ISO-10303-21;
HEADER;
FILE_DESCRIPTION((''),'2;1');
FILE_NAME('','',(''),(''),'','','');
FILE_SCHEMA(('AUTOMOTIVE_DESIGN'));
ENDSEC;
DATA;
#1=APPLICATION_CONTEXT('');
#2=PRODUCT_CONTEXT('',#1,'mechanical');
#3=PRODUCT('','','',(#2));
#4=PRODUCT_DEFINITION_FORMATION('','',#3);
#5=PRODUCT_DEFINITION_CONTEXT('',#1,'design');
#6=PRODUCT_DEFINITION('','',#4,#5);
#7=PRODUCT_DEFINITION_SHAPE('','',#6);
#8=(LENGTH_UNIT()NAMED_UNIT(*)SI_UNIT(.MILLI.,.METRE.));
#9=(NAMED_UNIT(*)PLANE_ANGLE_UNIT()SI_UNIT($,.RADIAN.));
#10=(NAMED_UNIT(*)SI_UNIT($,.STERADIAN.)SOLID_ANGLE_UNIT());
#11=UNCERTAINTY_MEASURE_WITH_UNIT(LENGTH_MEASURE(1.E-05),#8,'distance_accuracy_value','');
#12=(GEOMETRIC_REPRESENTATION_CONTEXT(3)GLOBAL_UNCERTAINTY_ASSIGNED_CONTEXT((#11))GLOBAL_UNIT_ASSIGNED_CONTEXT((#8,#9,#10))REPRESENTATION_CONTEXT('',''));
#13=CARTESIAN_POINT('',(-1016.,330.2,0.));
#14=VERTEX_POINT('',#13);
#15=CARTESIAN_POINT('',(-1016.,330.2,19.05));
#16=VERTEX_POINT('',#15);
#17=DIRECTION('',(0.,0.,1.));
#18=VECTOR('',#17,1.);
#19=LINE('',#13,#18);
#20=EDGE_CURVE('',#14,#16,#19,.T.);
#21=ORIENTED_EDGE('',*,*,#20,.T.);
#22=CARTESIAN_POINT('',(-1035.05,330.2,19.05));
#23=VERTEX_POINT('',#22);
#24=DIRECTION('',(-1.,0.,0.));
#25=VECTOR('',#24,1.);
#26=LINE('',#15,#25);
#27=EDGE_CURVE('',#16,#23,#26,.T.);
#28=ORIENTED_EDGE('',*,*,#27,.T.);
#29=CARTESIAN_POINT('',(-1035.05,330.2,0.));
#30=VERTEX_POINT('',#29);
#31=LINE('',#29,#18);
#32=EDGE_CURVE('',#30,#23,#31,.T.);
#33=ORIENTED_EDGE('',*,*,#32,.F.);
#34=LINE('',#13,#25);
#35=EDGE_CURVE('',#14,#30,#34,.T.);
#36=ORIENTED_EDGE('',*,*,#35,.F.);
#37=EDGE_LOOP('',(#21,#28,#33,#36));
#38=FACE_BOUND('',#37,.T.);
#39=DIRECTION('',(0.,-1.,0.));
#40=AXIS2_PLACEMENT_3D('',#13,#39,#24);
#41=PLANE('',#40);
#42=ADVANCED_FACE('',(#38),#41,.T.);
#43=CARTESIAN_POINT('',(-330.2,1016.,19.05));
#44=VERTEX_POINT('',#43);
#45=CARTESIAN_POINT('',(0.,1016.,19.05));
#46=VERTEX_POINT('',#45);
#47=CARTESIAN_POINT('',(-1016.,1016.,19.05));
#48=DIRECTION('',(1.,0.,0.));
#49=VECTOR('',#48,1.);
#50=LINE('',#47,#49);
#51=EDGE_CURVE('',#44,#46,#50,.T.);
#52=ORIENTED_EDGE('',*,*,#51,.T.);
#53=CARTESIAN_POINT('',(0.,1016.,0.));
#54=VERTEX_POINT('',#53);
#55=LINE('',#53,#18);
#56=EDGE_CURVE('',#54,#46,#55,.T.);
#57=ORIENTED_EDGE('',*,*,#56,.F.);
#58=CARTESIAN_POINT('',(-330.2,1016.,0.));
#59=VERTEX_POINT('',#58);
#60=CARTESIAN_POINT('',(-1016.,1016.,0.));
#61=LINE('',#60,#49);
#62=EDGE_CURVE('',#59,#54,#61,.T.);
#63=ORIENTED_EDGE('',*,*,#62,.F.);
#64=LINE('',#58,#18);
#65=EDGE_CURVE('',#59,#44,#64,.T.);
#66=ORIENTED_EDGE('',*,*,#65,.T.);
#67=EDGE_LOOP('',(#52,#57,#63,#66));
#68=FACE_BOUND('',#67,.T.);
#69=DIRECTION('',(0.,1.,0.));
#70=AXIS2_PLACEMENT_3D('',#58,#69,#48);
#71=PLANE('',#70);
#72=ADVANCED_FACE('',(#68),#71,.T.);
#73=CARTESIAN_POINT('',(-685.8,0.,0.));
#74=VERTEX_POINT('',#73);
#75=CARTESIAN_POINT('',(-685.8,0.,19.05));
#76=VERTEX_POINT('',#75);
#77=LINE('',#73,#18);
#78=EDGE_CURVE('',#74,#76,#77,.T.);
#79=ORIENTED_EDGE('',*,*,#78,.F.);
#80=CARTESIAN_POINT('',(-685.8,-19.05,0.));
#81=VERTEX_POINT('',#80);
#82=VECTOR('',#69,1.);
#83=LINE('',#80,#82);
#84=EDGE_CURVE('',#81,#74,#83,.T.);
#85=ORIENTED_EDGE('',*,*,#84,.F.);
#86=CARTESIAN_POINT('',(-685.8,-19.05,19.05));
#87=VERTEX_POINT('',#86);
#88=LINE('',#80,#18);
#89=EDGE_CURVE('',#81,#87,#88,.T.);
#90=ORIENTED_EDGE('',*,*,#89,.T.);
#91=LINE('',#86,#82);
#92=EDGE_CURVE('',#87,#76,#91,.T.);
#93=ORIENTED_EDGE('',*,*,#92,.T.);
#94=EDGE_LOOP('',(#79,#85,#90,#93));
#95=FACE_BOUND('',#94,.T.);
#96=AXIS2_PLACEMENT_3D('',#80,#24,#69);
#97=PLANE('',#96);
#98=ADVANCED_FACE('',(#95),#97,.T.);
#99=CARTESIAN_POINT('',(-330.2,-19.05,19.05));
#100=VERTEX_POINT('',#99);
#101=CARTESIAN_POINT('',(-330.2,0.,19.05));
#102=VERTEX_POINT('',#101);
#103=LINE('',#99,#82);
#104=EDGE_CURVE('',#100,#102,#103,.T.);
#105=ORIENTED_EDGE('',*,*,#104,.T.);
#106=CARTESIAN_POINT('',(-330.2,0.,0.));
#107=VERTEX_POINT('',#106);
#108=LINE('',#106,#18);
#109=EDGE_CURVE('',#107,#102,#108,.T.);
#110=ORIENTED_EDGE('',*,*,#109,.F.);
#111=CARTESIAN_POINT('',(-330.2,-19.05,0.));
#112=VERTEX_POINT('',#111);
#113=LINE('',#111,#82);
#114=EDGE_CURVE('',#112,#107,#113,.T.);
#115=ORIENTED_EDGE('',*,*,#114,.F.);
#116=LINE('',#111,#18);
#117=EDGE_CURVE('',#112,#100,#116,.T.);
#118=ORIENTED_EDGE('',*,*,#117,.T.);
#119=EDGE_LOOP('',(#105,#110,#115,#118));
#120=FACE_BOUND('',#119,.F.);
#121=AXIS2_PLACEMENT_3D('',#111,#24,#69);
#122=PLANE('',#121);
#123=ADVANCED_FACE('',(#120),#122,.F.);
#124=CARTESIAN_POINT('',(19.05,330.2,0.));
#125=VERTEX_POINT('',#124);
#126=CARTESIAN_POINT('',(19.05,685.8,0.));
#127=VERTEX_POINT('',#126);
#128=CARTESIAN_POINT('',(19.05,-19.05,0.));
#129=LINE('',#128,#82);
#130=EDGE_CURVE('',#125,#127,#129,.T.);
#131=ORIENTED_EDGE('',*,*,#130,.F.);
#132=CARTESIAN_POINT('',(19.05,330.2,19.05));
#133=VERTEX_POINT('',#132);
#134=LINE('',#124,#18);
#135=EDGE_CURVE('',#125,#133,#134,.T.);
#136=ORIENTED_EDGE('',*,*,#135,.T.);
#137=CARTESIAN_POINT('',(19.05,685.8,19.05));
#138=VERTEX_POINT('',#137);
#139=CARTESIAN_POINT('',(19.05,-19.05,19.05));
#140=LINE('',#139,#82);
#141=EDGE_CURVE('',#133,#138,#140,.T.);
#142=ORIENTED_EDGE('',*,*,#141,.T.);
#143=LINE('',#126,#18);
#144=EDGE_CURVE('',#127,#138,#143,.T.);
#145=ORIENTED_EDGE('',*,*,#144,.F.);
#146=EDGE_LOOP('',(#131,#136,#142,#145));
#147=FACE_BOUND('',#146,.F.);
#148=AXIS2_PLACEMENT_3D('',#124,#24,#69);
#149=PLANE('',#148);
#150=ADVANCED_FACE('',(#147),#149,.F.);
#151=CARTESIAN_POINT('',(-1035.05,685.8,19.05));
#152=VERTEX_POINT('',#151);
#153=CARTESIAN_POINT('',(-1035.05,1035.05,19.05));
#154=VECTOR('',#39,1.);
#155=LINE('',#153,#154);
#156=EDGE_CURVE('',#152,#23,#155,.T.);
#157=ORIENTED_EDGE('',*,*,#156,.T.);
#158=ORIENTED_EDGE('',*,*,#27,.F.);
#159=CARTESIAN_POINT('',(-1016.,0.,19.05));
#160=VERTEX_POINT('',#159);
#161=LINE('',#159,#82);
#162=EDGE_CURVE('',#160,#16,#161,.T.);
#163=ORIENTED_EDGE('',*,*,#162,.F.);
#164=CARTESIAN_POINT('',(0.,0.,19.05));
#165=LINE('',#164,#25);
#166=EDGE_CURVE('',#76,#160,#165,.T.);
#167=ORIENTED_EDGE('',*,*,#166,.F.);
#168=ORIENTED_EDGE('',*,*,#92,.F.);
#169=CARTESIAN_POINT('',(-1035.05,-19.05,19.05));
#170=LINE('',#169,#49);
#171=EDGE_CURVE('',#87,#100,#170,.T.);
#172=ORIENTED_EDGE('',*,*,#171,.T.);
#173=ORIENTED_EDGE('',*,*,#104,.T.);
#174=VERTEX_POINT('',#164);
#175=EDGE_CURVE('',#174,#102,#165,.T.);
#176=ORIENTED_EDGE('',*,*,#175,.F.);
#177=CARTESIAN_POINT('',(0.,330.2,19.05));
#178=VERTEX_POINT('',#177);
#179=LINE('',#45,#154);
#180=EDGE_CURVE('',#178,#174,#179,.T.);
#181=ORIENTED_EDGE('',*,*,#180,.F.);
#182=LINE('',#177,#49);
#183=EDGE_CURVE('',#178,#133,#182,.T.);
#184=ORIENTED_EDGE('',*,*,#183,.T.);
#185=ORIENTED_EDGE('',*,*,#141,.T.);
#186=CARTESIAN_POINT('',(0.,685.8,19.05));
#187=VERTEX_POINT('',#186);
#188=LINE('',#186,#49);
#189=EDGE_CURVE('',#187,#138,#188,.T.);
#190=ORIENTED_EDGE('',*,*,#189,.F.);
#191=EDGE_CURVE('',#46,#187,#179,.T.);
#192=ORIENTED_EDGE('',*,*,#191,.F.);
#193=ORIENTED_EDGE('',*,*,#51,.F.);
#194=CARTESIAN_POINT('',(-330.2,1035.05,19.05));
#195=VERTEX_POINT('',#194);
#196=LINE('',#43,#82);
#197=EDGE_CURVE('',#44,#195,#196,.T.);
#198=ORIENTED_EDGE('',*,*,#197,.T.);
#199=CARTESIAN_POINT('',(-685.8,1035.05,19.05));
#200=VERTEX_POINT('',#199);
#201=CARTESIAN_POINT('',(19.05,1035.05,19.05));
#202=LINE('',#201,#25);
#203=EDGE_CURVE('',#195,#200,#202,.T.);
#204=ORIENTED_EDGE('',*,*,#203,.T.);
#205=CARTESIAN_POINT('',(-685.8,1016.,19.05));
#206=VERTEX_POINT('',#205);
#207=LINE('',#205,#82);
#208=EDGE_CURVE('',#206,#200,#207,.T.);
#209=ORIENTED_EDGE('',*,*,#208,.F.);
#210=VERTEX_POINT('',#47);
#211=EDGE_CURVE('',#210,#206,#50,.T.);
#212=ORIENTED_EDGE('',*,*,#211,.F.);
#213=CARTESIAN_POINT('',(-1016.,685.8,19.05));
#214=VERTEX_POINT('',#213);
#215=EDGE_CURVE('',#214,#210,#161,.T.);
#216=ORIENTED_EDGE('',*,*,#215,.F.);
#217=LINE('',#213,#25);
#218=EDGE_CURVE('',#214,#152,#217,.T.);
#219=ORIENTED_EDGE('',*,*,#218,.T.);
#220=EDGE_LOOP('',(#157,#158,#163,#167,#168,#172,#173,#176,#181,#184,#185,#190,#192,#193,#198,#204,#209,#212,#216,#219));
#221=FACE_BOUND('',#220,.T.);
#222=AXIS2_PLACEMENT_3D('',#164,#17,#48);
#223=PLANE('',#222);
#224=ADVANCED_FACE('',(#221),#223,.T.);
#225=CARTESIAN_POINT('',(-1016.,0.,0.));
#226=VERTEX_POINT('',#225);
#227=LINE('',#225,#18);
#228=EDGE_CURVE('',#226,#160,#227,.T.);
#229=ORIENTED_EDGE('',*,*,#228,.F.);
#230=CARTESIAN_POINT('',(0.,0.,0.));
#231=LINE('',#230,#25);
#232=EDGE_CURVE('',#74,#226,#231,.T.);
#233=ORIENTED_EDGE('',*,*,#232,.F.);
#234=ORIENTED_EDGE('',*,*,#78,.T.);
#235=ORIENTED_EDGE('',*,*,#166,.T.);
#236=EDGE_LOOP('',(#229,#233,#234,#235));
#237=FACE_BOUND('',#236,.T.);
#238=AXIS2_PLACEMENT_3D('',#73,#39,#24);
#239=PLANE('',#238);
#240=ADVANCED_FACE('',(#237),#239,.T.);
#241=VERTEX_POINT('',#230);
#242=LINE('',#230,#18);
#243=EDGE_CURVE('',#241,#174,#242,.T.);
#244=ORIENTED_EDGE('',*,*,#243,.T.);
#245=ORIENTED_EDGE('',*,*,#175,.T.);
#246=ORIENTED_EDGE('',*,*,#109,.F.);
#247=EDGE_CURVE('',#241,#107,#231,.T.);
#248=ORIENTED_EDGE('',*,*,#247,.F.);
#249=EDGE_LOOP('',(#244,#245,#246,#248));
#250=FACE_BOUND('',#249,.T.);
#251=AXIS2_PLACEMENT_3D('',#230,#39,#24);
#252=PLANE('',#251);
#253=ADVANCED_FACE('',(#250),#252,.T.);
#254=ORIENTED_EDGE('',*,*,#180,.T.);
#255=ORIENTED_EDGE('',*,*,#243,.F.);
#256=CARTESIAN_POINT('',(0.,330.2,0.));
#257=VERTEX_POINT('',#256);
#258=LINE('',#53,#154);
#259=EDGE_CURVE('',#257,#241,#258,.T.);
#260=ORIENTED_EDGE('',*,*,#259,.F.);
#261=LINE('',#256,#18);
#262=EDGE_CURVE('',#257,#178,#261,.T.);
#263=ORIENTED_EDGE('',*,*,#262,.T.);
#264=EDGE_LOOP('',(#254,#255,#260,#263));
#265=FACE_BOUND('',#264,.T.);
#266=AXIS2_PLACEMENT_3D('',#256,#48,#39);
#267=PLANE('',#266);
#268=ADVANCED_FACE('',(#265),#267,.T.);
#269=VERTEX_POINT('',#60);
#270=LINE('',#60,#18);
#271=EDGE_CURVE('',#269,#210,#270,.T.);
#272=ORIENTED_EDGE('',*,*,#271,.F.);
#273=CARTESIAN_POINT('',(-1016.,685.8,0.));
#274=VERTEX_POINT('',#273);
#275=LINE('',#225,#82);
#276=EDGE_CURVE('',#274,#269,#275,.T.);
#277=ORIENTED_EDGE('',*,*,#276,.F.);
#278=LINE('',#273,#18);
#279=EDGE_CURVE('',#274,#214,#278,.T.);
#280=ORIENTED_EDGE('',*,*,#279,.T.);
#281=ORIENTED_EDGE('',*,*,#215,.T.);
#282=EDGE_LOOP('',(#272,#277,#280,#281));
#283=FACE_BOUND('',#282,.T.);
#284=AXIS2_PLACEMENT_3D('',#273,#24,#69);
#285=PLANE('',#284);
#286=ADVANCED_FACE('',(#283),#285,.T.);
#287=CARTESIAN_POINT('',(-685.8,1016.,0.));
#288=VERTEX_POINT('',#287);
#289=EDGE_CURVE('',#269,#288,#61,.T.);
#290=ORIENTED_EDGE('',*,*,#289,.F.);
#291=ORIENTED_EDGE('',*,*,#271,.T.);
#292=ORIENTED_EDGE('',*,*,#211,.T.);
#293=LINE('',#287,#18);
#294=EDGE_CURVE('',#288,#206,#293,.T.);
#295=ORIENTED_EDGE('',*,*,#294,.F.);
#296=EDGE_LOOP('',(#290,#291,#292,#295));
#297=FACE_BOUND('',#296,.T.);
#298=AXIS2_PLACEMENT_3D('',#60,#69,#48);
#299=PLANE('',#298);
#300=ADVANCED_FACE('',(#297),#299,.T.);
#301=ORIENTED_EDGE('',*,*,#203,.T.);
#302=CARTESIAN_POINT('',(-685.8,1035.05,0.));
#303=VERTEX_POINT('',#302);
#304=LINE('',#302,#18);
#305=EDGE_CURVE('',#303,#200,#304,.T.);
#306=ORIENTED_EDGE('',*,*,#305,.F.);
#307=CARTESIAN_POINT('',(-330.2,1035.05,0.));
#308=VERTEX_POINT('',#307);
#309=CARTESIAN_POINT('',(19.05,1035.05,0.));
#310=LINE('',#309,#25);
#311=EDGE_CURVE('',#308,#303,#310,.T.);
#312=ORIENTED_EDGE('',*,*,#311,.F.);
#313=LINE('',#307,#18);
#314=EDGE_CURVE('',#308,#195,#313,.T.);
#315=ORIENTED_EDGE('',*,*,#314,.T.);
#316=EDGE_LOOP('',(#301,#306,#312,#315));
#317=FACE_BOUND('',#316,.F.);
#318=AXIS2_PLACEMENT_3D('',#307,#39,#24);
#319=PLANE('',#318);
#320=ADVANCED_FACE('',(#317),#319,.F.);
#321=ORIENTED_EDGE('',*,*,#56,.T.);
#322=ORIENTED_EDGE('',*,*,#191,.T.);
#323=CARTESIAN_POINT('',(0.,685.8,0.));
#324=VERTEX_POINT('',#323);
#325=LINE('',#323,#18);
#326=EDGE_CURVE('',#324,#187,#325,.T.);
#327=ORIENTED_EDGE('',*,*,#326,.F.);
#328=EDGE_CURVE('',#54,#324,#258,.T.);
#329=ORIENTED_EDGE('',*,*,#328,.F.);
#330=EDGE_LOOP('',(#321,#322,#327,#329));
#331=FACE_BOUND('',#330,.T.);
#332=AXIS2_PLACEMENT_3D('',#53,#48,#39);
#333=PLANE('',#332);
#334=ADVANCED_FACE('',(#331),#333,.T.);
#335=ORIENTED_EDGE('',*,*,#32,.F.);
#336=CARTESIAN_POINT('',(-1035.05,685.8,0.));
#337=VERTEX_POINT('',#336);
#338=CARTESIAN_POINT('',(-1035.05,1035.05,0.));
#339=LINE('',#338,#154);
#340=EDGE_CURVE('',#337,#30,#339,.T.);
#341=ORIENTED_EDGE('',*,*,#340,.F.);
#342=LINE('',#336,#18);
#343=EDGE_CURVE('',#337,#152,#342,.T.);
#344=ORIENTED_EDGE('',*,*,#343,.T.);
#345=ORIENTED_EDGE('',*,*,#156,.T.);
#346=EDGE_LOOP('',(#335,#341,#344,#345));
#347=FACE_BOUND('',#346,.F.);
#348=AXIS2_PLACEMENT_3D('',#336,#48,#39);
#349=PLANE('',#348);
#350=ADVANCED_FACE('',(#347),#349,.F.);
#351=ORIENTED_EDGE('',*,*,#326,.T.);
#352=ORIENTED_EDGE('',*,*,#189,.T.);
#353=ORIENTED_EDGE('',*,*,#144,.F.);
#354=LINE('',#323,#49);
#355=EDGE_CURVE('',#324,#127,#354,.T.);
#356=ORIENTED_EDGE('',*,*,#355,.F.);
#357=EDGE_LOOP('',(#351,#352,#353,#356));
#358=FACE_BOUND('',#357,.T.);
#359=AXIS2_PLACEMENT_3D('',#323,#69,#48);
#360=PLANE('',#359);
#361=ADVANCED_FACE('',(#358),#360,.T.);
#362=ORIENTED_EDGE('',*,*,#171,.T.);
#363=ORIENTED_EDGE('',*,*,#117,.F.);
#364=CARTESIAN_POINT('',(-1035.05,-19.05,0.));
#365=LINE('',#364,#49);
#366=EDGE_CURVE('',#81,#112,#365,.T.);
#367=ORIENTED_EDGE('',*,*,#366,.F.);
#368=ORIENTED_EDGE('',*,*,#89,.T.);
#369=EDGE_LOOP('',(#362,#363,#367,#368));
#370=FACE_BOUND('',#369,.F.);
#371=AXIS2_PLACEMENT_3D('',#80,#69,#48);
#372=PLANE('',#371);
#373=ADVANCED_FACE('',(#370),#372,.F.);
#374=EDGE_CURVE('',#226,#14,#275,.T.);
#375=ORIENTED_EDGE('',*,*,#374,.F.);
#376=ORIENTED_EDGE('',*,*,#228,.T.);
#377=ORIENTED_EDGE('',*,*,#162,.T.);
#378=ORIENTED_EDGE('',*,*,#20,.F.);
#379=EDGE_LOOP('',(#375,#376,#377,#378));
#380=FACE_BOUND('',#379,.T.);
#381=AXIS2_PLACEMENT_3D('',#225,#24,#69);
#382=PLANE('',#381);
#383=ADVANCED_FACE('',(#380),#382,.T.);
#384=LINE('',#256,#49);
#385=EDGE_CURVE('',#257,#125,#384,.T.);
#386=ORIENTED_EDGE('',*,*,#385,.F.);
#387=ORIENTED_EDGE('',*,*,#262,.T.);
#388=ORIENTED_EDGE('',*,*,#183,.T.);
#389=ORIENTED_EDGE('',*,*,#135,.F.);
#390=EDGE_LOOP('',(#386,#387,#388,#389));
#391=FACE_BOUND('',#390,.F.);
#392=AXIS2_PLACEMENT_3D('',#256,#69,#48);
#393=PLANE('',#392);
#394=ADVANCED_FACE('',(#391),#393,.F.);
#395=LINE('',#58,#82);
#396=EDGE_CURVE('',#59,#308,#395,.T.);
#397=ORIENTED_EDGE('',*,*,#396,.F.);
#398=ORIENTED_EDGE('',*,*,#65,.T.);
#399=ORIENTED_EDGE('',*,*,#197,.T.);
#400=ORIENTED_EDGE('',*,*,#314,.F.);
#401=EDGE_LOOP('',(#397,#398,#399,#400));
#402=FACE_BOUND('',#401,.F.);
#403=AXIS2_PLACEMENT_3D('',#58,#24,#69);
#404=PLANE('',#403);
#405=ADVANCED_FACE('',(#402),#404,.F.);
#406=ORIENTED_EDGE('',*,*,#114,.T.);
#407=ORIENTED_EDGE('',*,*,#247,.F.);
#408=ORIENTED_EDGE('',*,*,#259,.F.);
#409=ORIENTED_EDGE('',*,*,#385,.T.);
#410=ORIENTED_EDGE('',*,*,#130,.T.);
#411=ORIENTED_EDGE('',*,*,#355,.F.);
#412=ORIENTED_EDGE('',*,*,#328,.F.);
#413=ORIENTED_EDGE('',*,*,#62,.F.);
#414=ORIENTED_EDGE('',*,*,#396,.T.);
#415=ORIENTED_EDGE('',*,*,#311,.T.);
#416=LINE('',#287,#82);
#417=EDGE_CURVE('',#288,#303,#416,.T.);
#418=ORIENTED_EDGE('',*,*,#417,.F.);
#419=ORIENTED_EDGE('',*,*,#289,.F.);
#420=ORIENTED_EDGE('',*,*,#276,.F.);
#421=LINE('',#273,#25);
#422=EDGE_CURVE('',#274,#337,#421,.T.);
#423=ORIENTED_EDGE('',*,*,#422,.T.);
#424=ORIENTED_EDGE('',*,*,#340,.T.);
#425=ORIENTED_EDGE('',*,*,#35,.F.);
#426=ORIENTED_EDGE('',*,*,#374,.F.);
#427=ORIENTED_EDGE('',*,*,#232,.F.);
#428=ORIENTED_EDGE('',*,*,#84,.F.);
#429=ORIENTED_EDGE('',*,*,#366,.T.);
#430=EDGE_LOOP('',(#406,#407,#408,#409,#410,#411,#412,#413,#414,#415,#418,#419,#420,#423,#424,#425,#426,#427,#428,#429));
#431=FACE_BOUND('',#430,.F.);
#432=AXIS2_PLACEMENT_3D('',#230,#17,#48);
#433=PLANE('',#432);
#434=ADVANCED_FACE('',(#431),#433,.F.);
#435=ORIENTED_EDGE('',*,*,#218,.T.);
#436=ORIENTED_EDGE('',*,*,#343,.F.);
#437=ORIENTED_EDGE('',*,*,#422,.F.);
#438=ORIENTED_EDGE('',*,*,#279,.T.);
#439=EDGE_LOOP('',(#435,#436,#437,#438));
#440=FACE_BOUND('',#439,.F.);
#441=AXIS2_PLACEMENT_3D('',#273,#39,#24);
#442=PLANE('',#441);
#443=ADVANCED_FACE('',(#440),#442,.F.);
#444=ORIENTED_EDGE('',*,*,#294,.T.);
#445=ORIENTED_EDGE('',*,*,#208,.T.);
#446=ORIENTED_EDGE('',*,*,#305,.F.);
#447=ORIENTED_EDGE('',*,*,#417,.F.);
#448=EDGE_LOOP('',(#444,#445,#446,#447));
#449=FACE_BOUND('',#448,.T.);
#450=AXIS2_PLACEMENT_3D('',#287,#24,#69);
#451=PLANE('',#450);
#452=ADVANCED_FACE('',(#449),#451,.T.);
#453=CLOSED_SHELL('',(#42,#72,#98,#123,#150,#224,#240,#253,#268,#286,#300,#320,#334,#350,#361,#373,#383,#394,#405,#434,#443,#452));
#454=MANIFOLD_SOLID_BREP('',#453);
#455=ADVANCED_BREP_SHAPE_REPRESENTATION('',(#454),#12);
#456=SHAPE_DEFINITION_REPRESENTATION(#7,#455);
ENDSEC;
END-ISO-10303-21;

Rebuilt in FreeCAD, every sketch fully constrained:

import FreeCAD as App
import Part
import Sketcher
Q = App.Units.Quantity


def add_polygon(sketch, points):
    """Adds a closed chain of lines whose ends are joined by coincident constraints."""
    first, n = sketch.GeometryCount, len(points)
    for a, b in zip(points, points[1:] + points[:1]):
        sketch.addGeometry(Part.LineSegment(App.Vector(*a, 0), App.Vector(*b, 0)), False)
    for i in range(n):
        sketch.addConstraint(Sketcher.Constraint("Coincident", first + i, 2, first + (i + 1) % n, 1))

doc = App.newDocument("Part")
body = doc.addObject("PartDesign::Body", "Body")

sketch1 = body.newObject("Sketcher::SketchObject", "Sketch")
sketch1.AttachmentSupport = (doc.getObject("XY_Plane"), [""])
sketch1.MapMode = "FlatFace"
add_polygon(sketch1, [(-330, 0), (0, 0), (0, 330), (19, 330), (19, 686), (0, 686), (0, 1016), (-330, 1016), (-330, 1035), (-686, 1035), (-686, 1016), (-1016, 1016), (-1016, 686), (-1035, 686), (-1035, 330), (-1016, 330), (-1016, 0), (-686, 0), (-686, -19), (-330, -19)])
sketch1.addConstraint(Sketcher.Constraint("Horizontal", 0))
sketch1.addConstraint(Sketcher.Constraint("Vertical", 1))
sketch1.addConstraint(Sketcher.Constraint("Horizontal", 2))
sketch1.addConstraint(Sketcher.Constraint("Vertical", 3))
sketch1.addConstraint(Sketcher.Constraint("Horizontal", 4))
sketch1.addConstraint(Sketcher.Constraint("Vertical", 5))
sketch1.addConstraint(Sketcher.Constraint("Horizontal", 6))
sketch1.addConstraint(Sketcher.Constraint("Vertical", 7))
sketch1.addConstraint(Sketcher.Constraint("Horizontal", 8))
sketch1.addConstraint(Sketcher.Constraint("Vertical", 9))
sketch1.addConstraint(Sketcher.Constraint("Horizontal", 10))
sketch1.addConstraint(Sketcher.Constraint("Vertical", 11))
sketch1.addConstraint(Sketcher.Constraint("Horizontal", 12))
sketch1.addConstraint(Sketcher.Constraint("Vertical", 13))
sketch1.addConstraint(Sketcher.Constraint("Horizontal", 14))
sketch1.addConstraint(Sketcher.Constraint("Vertical", 15))
sketch1.addConstraint(Sketcher.Constraint("Horizontal", 16))
sketch1.addConstraint(Sketcher.Constraint("Vertical", 17))
sketch1.addConstraint(Sketcher.Constraint("Horizontal", 18))
sketch1.addConstraint(Sketcher.Constraint("Vertical", 19))
sketch1.addConstraint(Sketcher.Constraint("Coincident", 0, 2, -1, 1))
sketch1.addConstraint(Sketcher.Constraint("PointOnObject", 4, 2, -2))
sketch1.addConstraint(Sketcher.Constraint("PointOnObject", 15, 2, -1))
sketch1.addConstraint(Sketcher.Constraint("Horizontal", 6, 2, 9, 2))
sketch1.addConstraint(Sketcher.Constraint("Horizontal", 4, 2, 11, 2))
sketch1.addConstraint(Sketcher.Constraint("Horizontal", 2, 2, 13, 2))
sketch1.addConstraint(Sketcher.Constraint("Vertical", 11, 2, 14, 2))
sketch1.addConstraint(Sketcher.Constraint("Vertical", 9, 2, 16, 2))
sketch1.addConstraint(Sketcher.Constraint("Vertical", 7, 2, 18, 2))
sketch1.addConstraint(Sketcher.Constraint("Equal", 6, 10))
sketch1.addConstraint(Sketcher.Constraint("Equal", 4, 12))
sketch1.addConstraint(Sketcher.Constraint("Equal", 16, 1))
sketch1.addConstraint(Sketcher.Constraint("Equal", 18, 3))
sketch1.addConstraint(Sketcher.Constraint("Equal", 1, 5))
sketch1.addConstraint(Sketcher.Constraint("Equal", 14, 7))
sketch1.addConstraint(Sketcher.Constraint("Equal", 9, 17))
sketch1.addConstraint(Sketcher.Constraint("DistanceX", 8, 2, 8, 1, Q("14 in")))
sketch1.addConstraint(Sketcher.Constraint("DistanceY", -1, 1, 5, 2, Q("40 in")))
sketch1.addConstraint(Sketcher.Constraint("DistanceX", 2, 1, 2, 2, Q("0.75 in")))
pad1 = body.newObject("PartDesign::Pad", "Pad")
pad1.Profile = sketch1
pad1.Length = Q("0.75 in")

doc.recompute()
